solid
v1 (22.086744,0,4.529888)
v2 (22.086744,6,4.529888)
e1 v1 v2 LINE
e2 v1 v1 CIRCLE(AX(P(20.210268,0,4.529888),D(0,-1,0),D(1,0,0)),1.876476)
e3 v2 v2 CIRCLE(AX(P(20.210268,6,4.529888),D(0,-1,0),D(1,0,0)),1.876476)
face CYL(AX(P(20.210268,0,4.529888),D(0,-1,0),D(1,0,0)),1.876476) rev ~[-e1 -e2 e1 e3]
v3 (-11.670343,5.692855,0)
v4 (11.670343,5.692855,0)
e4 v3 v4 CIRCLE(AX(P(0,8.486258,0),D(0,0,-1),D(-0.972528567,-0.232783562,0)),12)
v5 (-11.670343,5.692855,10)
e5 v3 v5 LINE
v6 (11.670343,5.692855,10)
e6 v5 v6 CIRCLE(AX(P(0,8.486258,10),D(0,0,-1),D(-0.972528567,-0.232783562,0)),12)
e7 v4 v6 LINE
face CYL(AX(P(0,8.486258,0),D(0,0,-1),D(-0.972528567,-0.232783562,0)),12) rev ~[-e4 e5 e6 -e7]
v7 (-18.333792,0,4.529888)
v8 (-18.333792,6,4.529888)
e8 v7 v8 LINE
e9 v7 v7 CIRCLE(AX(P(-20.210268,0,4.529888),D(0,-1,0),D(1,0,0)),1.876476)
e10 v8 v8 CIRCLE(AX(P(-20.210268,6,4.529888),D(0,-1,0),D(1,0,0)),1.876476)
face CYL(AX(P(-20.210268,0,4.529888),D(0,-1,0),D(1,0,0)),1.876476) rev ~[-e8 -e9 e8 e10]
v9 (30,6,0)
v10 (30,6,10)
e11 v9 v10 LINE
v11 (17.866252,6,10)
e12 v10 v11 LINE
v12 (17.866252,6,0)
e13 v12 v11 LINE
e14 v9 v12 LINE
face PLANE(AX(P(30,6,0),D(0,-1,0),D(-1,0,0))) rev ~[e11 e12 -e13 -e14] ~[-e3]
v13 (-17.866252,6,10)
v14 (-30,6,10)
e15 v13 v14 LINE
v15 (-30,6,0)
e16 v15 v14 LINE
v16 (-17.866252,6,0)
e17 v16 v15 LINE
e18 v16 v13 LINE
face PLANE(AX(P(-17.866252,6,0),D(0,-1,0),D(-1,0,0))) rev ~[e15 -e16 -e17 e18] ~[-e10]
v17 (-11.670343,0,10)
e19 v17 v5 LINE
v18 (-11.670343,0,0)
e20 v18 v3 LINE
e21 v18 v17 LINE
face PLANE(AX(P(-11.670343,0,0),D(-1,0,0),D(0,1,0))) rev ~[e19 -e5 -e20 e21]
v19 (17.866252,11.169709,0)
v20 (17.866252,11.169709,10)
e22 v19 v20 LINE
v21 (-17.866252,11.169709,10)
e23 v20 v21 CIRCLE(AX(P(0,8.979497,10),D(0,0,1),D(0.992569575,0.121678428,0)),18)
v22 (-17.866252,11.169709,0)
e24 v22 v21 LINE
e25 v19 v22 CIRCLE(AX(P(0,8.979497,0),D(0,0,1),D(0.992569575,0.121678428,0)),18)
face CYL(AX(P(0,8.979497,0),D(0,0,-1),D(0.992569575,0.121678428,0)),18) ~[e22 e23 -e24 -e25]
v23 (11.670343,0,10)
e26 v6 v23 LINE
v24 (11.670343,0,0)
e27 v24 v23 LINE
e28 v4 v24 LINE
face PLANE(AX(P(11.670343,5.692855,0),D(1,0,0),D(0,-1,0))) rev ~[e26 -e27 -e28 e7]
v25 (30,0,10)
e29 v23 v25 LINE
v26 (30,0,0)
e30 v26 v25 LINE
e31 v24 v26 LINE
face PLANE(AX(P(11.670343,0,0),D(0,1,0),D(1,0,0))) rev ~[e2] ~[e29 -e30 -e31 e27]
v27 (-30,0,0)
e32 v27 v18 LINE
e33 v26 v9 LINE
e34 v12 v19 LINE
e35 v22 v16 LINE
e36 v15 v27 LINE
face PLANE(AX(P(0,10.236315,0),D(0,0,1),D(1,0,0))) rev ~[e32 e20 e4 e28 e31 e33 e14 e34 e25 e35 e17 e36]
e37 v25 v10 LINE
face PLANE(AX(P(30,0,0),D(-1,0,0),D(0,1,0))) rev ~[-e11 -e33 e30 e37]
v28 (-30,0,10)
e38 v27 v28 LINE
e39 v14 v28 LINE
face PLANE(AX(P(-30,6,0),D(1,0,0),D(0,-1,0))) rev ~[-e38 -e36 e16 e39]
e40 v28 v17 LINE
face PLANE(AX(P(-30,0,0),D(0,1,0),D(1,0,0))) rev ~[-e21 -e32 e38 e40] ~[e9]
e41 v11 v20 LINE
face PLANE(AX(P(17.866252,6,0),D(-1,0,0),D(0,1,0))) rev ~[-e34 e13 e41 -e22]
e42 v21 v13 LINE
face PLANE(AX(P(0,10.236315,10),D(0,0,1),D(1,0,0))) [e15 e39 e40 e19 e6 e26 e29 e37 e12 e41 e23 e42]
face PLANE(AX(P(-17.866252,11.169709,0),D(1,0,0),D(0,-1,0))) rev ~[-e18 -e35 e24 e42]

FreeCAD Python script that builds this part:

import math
import FreeCAD as App
import Part
import Sketcher
from FreeCAD import Vector
Q = App.Units.Quantity

doc = App.newDocument("Part")
params = doc.addObject("Spreadsheet::Sheet", "Params")
for row, (alias, value) in enumerate([
    ("sketch1_radius", "18 mm"),
    ("sketch1_radius2", "12 mm"),
    ("sketch1_height", "6 mm"),
    ("pad1_length", "10 mm"),
    ("pocket1_length", "6 mm"),
], start=1):
    params.set(f"A{row}", alias)
    params.set(f"B{row}", "=" + value)
    params.setAlias(f"B{row}", alias)

body = doc.addObject("PartDesign::Body", "Body")

# Sketch on XY plane
sketch1 = body.newObject("Sketcher::SketchObject", "Sketch")
sketch1.AttachmentSupport = (doc.getObject("XY_Plane"), [""])
sketch1.MapMode = "FlatFace"
sketch1.addGeometry([
    Part.ArcOfCircle(Part.Circle(Vector(0, 9, 0), Vector(0, 0, 1), 18), math.radians(7), math.radians(173)),  # 0
    Part.LineSegment(Vector(-18, 11, 0), Vector(-18, 6, 0)),  # 1
    Part.LineSegment(Vector(-18, 6, 0), Vector(-30, 6, 0)),  # 2
    Part.LineSegment(Vector(-30, 6, 0), Vector(-30, 0, 0)),  # 3
    Part.LineSegment(Vector(-30, 0, 0), Vector(-12, 0, 0)),  # 4
    Part.LineSegment(Vector(-12, 0, 0), Vector(-12, 6, 0)),  # 5
    Part.ArcOfCircle(Part.Circle(Vector(0, 8, 0), Vector(0, 0, 1), 12), math.radians(-13), math.radians(193)),  # 6
    Part.LineSegment(Vector(12, 6, 0), Vector(12, 0, 0)),  # 7
    Part.LineSegment(Vector(12, 0, 0), Vector(30, 0, 0)),  # 8
    Part.LineSegment(Vector(30, 0, 0), Vector(30, 6, 0)),  # 9
    Part.LineSegment(Vector(30, 6, 0), Vector(18, 6, 0)),  # 10
    Part.LineSegment(Vector(18, 6, 0), Vector(18, 11, 0)),  # 11
], False)
sketch1.addConstraint([
    Sketcher.Constraint("Coincident", 0, 2, 1, 1),
    Sketcher.Constraint("Coincident", 1, 2, 2, 1),
    Sketcher.Constraint("Coincident", 2, 2, 3, 1),
    Sketcher.Constraint("Coincident", 3, 2, 4, 1),
    Sketcher.Constraint("Coincident", 4, 2, 5, 1),
    Sketcher.Constraint("Coincident", 5, 2, 6, 2),
    Sketcher.Constraint("Coincident", 6, 1, 7, 1),
    Sketcher.Constraint("Coincident", 7, 2, 8, 1),
    Sketcher.Constraint("Coincident", 8, 2, 9, 1),
    Sketcher.Constraint("Coincident", 9, 2, 10, 1),
    Sketcher.Constraint("Coincident", 10, 2, 11, 1),
    Sketcher.Constraint("Coincident", 11, 2, 0, 1),
    Sketcher.Constraint("Vertical", 1),
    Sketcher.Constraint("Horizontal", 2),
    Sketcher.Constraint("Vertical", 3),
    Sketcher.Constraint("Horizontal", 4),
    Sketcher.Constraint("Vertical", 5),
    Sketcher.Constraint("Vertical", 7),
    Sketcher.Constraint("Horizontal", 8),
    Sketcher.Constraint("Vertical", 9),
    Sketcher.Constraint("Horizontal", 10),
    Sketcher.Constraint("Vertical", 11),
    Sketcher.Constraint("Symmetric", 4, 2, 7, 2, -1, 1),
    Sketcher.Constraint("Symmetric", 3, 2, 8, 2, -2),
    Sketcher.Constraint("Symmetric", 1, 2, 10, 2, -2),
    Sketcher.Constraint("PointOnObject", 0, 3, -2),
    Sketcher.Constraint("PointOnObject", 6, 3, -2),
    Sketcher.Constraint("Radius", 0, Q("18 mm")),
    Sketcher.Constraint("Radius", 6, Q("12 mm")),
    Sketcher.Constraint("DistanceY", 3, 2, 3, 1, Q("6 mm")),
    Sketcher.Constraint("DistanceX", 2, 2, -1, 1, Q("30 mm")),
    Sketcher.Constraint("DistanceX", 2, 2, 2, 1, Q("12.133748 mm")),
    Sketcher.Constraint("DistanceY", 1, 2, 1, 1, Q("5.169709 mm")),
    Sketcher.Constraint("DistanceX", 4, 1, 4, 2, Q("18.329657 mm")),
    Sketcher.Constraint("DistanceY", 5, 1, 5, 2, Q("5.692855 mm")),
])
sketch1.setExpression("Constraints[27]", "Params.sketch1_radius")
sketch1.setExpression("Constraints[28]", "Params.sketch1_radius2")
sketch1.setExpression("Constraints[29]", "Params.sketch1_height")
pad1 = body.newObject("PartDesign::Pad", "Pad")
pad1.Profile = sketch1
pad1.setExpression("Length", "Params.pad1_length")

# Sketch on XZ plane
sketch2 = body.newObject("Sketcher::SketchObject", "Sketch001")
sketch2.AttachmentSupport = (doc.getObject("XZ_Plane"), [""])
sketch2.MapMode = "FlatFace"
sketch2.addGeometry([
    Part.Circle(Vector(-20.2, 4.5, 0), Vector(0, 0, 1), 1.9),
    Part.Circle(Vector(20.2, 4.5, 0), Vector(0, 0, 1), 1.9),
], False)
sketch2.addConstraint([
    Sketcher.Constraint("Equal", 0, 1),
    Sketcher.Constraint("Symmetric", 0, 3, 1, 3, -2),
    Sketcher.Constraint("Diameter", 0, Q("3.752952 mm")),
    Sketcher.Constraint("DistanceX", 0, 3, -1, 1, Q("20.210268 mm")),
    Sketcher.Constraint("DistanceY", -1, 1, 0, 3, Q("4.529888 mm")),
])
pocket1 = body.newObject("PartDesign::Pocket", "Pocket")
pocket1.Profile = sketch2
pocket1.setExpression("Length", "Params.pocket1_length")

doc.recompute()
